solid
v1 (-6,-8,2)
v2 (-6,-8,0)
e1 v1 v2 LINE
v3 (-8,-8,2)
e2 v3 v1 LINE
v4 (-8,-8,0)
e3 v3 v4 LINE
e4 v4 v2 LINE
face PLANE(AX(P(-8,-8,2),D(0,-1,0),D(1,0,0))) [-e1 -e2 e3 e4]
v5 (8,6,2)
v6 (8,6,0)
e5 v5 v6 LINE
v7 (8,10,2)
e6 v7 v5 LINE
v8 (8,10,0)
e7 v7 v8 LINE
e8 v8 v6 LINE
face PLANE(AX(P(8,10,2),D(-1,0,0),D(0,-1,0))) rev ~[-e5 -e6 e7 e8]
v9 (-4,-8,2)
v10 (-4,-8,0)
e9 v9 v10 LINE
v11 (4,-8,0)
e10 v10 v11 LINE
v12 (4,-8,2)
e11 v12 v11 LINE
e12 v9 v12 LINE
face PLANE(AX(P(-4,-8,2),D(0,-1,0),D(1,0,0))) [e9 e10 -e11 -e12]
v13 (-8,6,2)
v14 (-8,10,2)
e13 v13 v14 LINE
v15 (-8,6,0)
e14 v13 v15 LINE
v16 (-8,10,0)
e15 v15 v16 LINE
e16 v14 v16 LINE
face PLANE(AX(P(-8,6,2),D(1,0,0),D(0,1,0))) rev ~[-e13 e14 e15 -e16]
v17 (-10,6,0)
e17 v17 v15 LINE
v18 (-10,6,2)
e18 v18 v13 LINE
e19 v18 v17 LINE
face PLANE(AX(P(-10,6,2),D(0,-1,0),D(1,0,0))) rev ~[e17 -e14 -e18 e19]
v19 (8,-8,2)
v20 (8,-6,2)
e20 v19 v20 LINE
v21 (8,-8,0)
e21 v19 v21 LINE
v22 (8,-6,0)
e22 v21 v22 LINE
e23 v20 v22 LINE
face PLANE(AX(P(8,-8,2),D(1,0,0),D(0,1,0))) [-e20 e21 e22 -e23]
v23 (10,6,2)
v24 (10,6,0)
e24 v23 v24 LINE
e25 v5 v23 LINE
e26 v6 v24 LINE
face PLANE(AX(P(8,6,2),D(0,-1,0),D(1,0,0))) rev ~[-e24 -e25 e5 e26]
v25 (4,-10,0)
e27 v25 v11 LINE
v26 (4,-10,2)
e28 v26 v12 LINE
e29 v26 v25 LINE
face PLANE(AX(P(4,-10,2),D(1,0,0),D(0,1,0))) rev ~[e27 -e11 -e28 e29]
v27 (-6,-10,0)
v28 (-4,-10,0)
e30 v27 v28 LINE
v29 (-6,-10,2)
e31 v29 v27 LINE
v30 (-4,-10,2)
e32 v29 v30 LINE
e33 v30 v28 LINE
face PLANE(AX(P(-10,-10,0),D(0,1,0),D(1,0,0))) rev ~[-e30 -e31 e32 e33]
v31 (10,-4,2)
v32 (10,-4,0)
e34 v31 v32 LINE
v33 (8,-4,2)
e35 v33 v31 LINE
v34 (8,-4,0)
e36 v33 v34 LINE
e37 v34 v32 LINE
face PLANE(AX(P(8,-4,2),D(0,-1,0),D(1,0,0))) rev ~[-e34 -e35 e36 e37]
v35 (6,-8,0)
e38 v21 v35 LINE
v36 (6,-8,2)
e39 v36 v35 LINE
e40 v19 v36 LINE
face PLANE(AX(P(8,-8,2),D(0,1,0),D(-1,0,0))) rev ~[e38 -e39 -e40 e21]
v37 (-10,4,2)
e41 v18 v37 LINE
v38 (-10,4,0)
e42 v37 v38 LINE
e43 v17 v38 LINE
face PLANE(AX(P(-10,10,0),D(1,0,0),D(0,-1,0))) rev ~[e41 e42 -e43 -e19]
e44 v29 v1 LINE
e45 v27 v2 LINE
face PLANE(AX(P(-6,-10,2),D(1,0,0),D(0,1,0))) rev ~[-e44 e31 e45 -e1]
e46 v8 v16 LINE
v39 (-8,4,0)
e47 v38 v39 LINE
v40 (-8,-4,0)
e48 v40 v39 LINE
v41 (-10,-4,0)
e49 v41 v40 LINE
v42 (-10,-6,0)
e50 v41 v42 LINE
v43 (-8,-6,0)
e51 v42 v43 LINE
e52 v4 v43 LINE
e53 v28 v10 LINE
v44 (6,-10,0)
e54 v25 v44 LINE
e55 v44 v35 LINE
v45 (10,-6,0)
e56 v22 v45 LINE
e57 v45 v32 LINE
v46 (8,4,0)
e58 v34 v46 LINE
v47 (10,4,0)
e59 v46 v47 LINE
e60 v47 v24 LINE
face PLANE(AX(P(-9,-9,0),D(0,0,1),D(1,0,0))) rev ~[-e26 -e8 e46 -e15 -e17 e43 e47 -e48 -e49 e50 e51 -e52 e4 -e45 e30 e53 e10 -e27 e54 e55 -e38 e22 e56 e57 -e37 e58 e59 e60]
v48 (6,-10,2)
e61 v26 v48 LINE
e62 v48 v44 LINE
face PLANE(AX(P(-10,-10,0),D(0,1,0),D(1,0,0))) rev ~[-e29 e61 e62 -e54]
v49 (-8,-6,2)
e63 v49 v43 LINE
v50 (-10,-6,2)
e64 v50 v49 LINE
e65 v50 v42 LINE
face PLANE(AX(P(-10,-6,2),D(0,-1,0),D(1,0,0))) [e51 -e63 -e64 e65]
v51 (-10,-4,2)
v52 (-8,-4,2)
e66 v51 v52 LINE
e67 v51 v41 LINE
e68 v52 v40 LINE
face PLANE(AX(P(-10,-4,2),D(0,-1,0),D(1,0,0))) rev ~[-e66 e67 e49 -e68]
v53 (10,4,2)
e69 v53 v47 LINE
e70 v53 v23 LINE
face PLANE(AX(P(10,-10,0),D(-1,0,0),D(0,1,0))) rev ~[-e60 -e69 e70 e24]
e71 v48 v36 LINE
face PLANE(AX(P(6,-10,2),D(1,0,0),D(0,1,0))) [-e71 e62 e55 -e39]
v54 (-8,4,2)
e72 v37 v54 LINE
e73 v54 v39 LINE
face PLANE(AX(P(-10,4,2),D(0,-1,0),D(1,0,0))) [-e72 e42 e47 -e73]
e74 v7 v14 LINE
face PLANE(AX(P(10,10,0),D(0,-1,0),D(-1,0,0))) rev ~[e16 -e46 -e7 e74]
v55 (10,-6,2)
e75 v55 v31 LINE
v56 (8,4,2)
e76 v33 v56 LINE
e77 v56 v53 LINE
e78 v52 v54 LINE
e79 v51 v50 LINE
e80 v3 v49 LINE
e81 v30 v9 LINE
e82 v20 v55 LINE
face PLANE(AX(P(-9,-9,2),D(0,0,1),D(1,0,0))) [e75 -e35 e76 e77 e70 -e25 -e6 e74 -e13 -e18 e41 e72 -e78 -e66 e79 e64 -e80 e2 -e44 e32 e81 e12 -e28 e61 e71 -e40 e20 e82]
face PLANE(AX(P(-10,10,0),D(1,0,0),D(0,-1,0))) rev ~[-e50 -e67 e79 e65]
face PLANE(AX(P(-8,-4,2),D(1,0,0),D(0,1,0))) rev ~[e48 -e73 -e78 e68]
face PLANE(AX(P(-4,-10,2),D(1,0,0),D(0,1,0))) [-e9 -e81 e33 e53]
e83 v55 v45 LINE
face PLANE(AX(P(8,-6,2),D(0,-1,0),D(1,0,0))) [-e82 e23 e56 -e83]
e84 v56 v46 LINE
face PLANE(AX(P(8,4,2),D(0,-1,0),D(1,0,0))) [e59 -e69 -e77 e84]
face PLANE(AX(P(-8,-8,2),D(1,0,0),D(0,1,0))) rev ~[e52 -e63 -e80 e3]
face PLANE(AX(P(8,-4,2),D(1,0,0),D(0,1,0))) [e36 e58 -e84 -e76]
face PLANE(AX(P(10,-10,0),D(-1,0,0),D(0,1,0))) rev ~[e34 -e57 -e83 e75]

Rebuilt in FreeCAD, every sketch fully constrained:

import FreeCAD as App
import Part
import Sketcher
from FreeCAD import Vector
Q = App.Units.Quantity

doc = App.newDocument("Part")
params = doc.addObject("Spreadsheet::Sheet", "Params")
for row, (alias, value) in enumerate([
    ("sketch1_width", "20 mm"),
    ("pad1_length", "2 mm"),
    ("sketch2_width", "2 mm"),
    ("sketch2_width2", "8 mm"),
    ("pocket1_length", "25 mm"),
], start=1):
    params.set(f"A{row}", alias)
    params.set(f"B{row}", "=" + value)
    params.setAlias(f"B{row}", alias)

body = doc.addObject("PartDesign::Body", "Body")

sketch1 = body.newObject("Sketcher::SketchObject", "Sketch")
sketch1.AttachmentSupport = (doc.getObject("XY_Plane"), [""])
sketch1.MapMode = "FlatFace"
sketch1.addGeometry([
    Part.LineSegment(Vector(10, -10, 0), Vector(10, 10, 0)),
    Part.LineSegment(Vector(10, 10, 0), Vector(-10, 10, 0)),
    Part.LineSegment(Vector(-10, 10, 0), Vector(-10, -10, 0)),
    Part.LineSegment(Vector(-10, -10, 0), Vector(10, -10, 0)),
], False)
sketch1.addConstraint([
    Sketcher.Constraint("Coincident", 0, 2, 1, 1),
    Sketcher.Constraint("Coincident", 1, 2, 2, 1),
    Sketcher.Constraint("Coincident", 2, 2, 3, 1),
    Sketcher.Constraint("Coincident", 3, 2, 0, 1),
    Sketcher.Constraint("Vertical", 0),
    Sketcher.Constraint("Horizontal", 1),
    Sketcher.Constraint("Vertical", 2),
    Sketcher.Constraint("Horizontal", 3),
    Sketcher.Constraint("Symmetric", 0, 2, 2, 2, -1, 1),
    Sketcher.Constraint("Equal", 3, 0),
    Sketcher.Constraint("DistanceX", 1, 2, 1, 1, Q("20 mm")),
])
sketch1.setExpression("Constraints[10]", "Params.sketch1_width")
pad1 = body.newObject("PartDesign::Pad", "Pad")
pad1.Profile = sketch1
pad1.setExpression("Length", "Params.pad1_length")

sketch2 = body.newObject("Sketcher::SketchObject", "Sketch001")
sketch2.AttachmentSupport = (doc.getObject("XY_Plane"), [""])
sketch2.MapMode = "FlatFace"
sketch2.AttachmentOffset = App.Placement(Vector(0, 0, 2), App.Rotation())
sketch2.addGeometry([
    Part.LineSegment(Vector(-10, 10, 0), Vector(-10, 6, 0)),
    Part.LineSegment(Vector(-10, 6, 0), Vector(-8, 6, 0)),
    Part.LineSegment(Vector(-8, 6, 0), Vector(-8, 10, 0)),
    Part.LineSegment(Vector(-8, 10, 0), Vector(-10, 10, 0)),
    Part.LineSegment(Vector(-10, 4, 0), Vector(-10, -4, 0)),
    Part.LineSegment(Vector(-10, -4, 0), Vector(-8, -4, 0)),
    Part.LineSegment(Vector(-8, -4, 0), Vector(-8, 4, 0)),
    Part.LineSegment(Vector(-8, 4, 0), Vector(-10, 4, 0)),
    Part.LineSegment(Vector(-10, -6, 0), Vector(-10, -10, 0)),
    Part.LineSegment(Vector(-10, -10, 0), Vector(-6, -10, 0)),
    Part.LineSegment(Vector(-6, -10, 0), Vector(-6, -8, 0)),
    Part.LineSegment(Vector(-6, -8, 0), Vector(-8, -8, 0)),
    Part.LineSegment(Vector(-8, -8, 0), Vector(-8, -6, 0)),
    Part.LineSegment(Vector(-8, -6, 0), Vector(-10, -6, 0)),
    Part.LineSegment(Vector(-4, -8, 0), Vector(-4, -10, 0)),
    Part.LineSegment(Vector(-4, -10, 0), Vector(4, -10, 0)),
    Part.LineSegment(Vector(4, -10, 0), Vector(4, -8, 0)),
    Part.LineSegment(Vector(4, -8, 0), Vector(-4, -8, 0)),
    Part.LineSegment(Vector(6, -8, 0), Vector(6, -10, 0)),
    Part.LineSegment(Vector(6, -10, 0), Vector(10, -10, 0)),
    Part.LineSegment(Vector(10, -10, 0), Vector(10, -6, 0)),
    Part.LineSegment(Vector(10, -6, 0), Vector(8, -6, 0)),
    Part.LineSegment(Vector(8, -6, 0), Vector(8, -8, 0)),
    Part.LineSegment(Vector(8, -8, 0), Vector(6, -8, 0)),
    Part.LineSegment(Vector(8, 4, 0), Vector(8, -4, 0)),
    Part.LineSegment(Vector(8, -4, 0), Vector(10, -4, 0)),
    Part.LineSegment(Vector(10, -4, 0), Vector(10, 4, 0)),
    Part.LineSegment(Vector(10, 4, 0), Vector(8, 4, 0)),
    Part.LineSegment(Vector(8, 6, 0), Vector(10, 6, 0)),
    Part.LineSegment(Vector(10, 6, 0), Vector(10, 10, 0)),
    Part.LineSegment(Vector(10, 10, 0), Vector(8, 10, 0)),
    Part.LineSegment(Vector(8, 10, 0), Vector(8, 6, 0)),
], False)
sketch2.addConstraint([
    Sketcher.Constraint("Coincident", 0, 2, 1, 1),
    Sketcher.Constraint("Coincident", 1, 2, 2, 1),
    Sketcher.Constraint("Coincident", 2, 2, 3, 1),
    Sketcher.Constraint("Coincident", 3, 2, 0, 1),
    Sketcher.Constraint("Coincident", 4, 2, 5, 1),
    Sketcher.Constraint("Coincident", 5, 2, 6, 1),
    Sketcher.Constraint("Coincident", 6, 2, 7, 1),
    Sketcher.Constraint("Coincident", 7, 2, 4, 1),
    Sketcher.Constraint("Coincident", 8, 2, 9, 1),
    Sketcher.Constraint("Coincident", 9, 2, 10, 1),
    Sketcher.Constraint("Coincident", 10, 2, 11, 1),
    Sketcher.Constraint("Coincident", 11, 2, 12, 1),
    Sketcher.Constraint("Coincident", 12, 2, 13, 1),
    Sketcher.Constraint("Coincident", 13, 2, 8, 1),
    Sketcher.Constraint("Coincident", 14, 2, 15, 1),
    Sketcher.Constraint("Coincident", 15, 2, 16, 1),
    Sketcher.Constraint("Coincident", 16, 2, 17, 1),
    Sketcher.Constraint("Coincident", 17, 2, 14, 1),
    Sketcher.Constraint("Coincident", 18, 2, 19, 1),
    Sketcher.Constraint("Coincident", 19, 2, 20, 1),
    Sketcher.Constraint("Coincident", 20, 2, 21, 1),
    Sketcher.Constraint("Coincident", 21, 2, 22, 1),
    Sketcher.Constraint("Coincident", 22, 2, 23, 1),
    Sketcher.Constraint("Coincident", 23, 2, 18, 1),
    Sketcher.Constraint("Coincident", 24, 2, 25, 1),
    Sketcher.Constraint("Coincident", 25, 2, 26, 1),
    Sketcher.Constraint("Coincident", 26, 2, 27, 1),
    Sketcher.Constraint("Coincident", 27, 2, 24, 1),
    Sketcher.Constraint("Coincident", 28, 2, 29, 1),
    Sketcher.Constraint("Coincident", 29, 2, 30, 1),
    Sketcher.Constraint("Coincident", 30, 2, 31, 1),
    Sketcher.Constraint("Coincident", 31, 2, 28, 1),
    Sketcher.Constraint("Vertical", 0),
    Sketcher.Constraint("Horizontal", 1),
    Sketcher.Constraint("Vertical", 2),
    Sketcher.Constraint("Horizontal", 3),
    Sketcher.Constraint("Vertical", 4),
    Sketcher.Constraint("Horizontal", 5),
    Sketcher.Constraint("Vertical", 6),
    Sketcher.Constraint("Horizontal", 7),
    Sketcher.Constraint("Vertical", 8),
    Sketcher.Constraint("Horizontal", 9),
    Sketcher.Constraint("Vertical", 10),
    Sketcher.Constraint("Horizontal", 11),
    Sketcher.Constraint("Vertical", 12),
    Sketcher.Constraint("Horizontal", 13),
    Sketcher.Constraint("Vertical", 14),
    Sketcher.Constraint("Horizontal", 15),
    Sketcher.Constraint("Vertical", 16),
    Sketcher.Constraint("Horizontal", 17),
    Sketcher.Constraint("Vertical", 18),
    Sketcher.Constraint("Horizontal", 19),
    Sketcher.Constraint("Vertical", 20),
    Sketcher.Constraint("Horizontal", 21),
    Sketcher.Constraint("Vertical", 22),
    Sketcher.Constraint("Horizontal", 23),
    Sketcher.Constraint("Vertical", 24),
    Sketcher.Constraint("Horizontal", 25),
    Sketcher.Constraint("Vertical", 26),
    Sketcher.Constraint("Horizontal", 27),
    Sketcher.Constraint("Horizontal", 28),
    Sketcher.Constraint("Vertical", 29),
    Sketcher.Constraint("Horizontal", 30),
    Sketcher.Constraint("Vertical", 31),
    Sketcher.Constraint("Symmetric", 3, 2, 19, 2, -1, 1),
    Sketcher.Constraint("Symmetric", 1, 2, 21, 2, -1, 1),
    Sketcher.Constraint("Symmetric", 6, 2, 24, 2, -1, 1),
    Sketcher.Constraint("Symmetric", 4, 2, 26, 2, -1, 1),
    Sketcher.Constraint("Symmetric", 13, 2, 28, 2, -1, 1),
    Sketcher.Constraint("Symmetric", 9, 2, 18, 2, -2),
    Sketcher.Constraint("Symmetric", 13, 2, 20, 2, -2),
    Sketcher.Constraint("Symmetric", 11, 2, 22, 2, -2),
    Sketcher.Constraint("Symmetric", 2, 2, 30, 2, -2),
    Sketcher.Constraint("Horizontal", 9, 2, 14, 2),
    Sketcher.Constraint("Horizontal", 11, 2, 16, 2),
    Sketcher.Constraint("Horizontal", 5, 2, 24, 2),
    Sketcher.Constraint("Vertical", 3, 2, 4, 2),
    Sketcher.Constraint("Vertical", 2, 2, 5, 2),
    Sketcher.Constraint("Equal", 7, 11),
    Sketcher.Constraint("Equal", 19, 0),
    Sketcher.Constraint("Equal", 17, 4),
    Sketcher.Constraint("Equal", 30, 10),
    Sketcher.Constraint("DistanceX", 1, 1, 1, 2, Q("2 mm")),
    Sketcher.Constraint("DistanceX", 15, 1, 15, 2, Q("8 mm")),
    Sketcher.Constraint("DistanceX", 0, 2, -1, 1, Q("10 mm")),
    Sketcher.Constraint("DistanceY", -1, 1, 0, 2, Q("6 mm")),
    Sketcher.Constraint("DistanceX", 14, 2, -1, 1, Q("4 mm")),
])
sketch2.setExpression("Constraints[82]", "Params.sketch2_width")
sketch2.setExpression("Constraints[83]", "Params.sketch2_width2")
pocket1 = body.newObject("PartDesign::Pocket", "Pocket")
pocket1.Profile = sketch2
pocket1.setExpression("Length", "Params.pocket1_length")

doc.recompute()
